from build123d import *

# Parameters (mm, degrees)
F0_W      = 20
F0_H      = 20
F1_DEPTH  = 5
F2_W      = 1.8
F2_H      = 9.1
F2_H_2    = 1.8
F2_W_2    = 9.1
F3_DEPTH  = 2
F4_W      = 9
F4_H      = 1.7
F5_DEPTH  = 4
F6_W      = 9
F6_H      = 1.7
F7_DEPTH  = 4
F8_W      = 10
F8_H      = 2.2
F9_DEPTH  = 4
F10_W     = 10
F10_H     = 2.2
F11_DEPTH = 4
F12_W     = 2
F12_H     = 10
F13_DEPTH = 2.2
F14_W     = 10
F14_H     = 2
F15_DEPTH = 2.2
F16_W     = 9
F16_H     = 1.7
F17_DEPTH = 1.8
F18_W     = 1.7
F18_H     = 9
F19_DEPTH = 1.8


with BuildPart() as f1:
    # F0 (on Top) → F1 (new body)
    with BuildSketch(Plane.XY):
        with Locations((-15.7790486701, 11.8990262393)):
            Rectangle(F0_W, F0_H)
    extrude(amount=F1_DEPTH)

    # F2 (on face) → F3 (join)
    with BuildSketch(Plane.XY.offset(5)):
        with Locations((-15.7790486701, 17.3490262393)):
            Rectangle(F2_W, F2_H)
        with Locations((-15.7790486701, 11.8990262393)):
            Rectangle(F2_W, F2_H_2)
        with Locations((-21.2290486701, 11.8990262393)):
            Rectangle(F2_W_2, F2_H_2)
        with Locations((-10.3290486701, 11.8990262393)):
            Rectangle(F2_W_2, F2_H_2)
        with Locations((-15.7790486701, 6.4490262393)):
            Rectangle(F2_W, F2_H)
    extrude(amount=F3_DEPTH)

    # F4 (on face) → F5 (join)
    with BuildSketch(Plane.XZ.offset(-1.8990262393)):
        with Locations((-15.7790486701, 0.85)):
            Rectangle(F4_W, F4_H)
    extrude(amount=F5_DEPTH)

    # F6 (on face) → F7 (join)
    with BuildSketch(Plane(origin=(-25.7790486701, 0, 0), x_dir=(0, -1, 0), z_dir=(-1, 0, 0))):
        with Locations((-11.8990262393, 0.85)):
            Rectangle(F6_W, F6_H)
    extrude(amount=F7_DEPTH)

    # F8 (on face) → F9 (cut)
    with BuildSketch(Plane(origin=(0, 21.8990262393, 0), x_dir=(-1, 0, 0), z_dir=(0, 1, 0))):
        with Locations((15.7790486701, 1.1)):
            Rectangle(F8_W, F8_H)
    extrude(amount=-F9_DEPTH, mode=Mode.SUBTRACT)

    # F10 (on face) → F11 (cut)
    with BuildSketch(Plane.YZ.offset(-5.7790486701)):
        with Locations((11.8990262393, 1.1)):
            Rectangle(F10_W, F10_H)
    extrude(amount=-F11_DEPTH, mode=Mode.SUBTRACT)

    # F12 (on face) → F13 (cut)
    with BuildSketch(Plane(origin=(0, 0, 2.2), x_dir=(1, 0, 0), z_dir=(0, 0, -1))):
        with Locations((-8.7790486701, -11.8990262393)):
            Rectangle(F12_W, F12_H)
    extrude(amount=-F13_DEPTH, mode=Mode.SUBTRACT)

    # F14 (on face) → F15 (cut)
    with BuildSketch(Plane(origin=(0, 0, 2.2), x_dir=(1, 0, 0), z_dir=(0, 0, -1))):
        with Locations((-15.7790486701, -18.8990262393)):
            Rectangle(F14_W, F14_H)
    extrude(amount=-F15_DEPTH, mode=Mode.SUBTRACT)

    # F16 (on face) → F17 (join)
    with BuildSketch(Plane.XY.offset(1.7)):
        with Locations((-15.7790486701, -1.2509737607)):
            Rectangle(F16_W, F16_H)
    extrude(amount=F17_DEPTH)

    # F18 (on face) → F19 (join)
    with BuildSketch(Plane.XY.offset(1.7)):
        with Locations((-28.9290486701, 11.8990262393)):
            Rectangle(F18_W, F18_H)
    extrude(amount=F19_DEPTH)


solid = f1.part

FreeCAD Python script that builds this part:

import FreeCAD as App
import Part
import Sketcher

V = App.Vector
Q = App.Units.Quantity

doc = App.newDocument("Part")
body = doc.addObject("PartDesign::Body", "Body")

sketch1 = body.newObject("Sketcher::SketchObject", "Sketch")
sketch1.AttachmentSupport = (doc.getObject("XY_Plane"), [""])
sketch1.MapMode = "FlatFace"
sketch1.addGeometry(Part.LineSegment(V(-26, 22, 0), V(-26, 2, 0)), False)
sketch1.addGeometry(Part.LineSegment(V(-26, 2, 0), V(-6, 2, 0)), False)
sketch1.addGeometry(Part.LineSegment(V(-6, 2, 0), V(-6, 22, 0)), False)
sketch1.addGeometry(Part.LineSegment(V(-6, 22, 0), V(-26, 22, 0)), False)
sketch1.addConstraint(Sketcher.Constraint("Coincident", 0, 2, 1, 1))
sketch1.addConstraint(Sketcher.Constraint("Coincident", 1, 2, 2, 1))
sketch1.addConstraint(Sketcher.Constraint("Coincident", 2, 2, 3, 1))
sketch1.addConstraint(Sketcher.Constraint("Coincident", 3, 2, 0, 1))
sketch1.addConstraint(Sketcher.Constraint("Vertical", 0))
sketch1.addConstraint(Sketcher.Constraint("Horizontal", 1))
sketch1.addConstraint(Sketcher.Constraint("Vertical", 2))
sketch1.addConstraint(Sketcher.Constraint("Horizontal", 3))
sketch1.addConstraint(Sketcher.Constraint("Equal", 3, 0))
sketch1.addConstraint(Sketcher.Constraint("DistanceX", 1, 1, 1, 2, Q("20 mm")))
sketch1.addConstraint(Sketcher.Constraint("DistanceX", 0, 2, -1, 1, Q("25.779049 mm")))
sketch1.addConstraint(Sketcher.Constraint("DistanceY", -1, 1, 0, 2, Q("1.899026 mm")))
pad1 = body.newObject("PartDesign::Pad", "Pad")
pad1.Profile = sketch1
pad1.Length = 5

sketch2 = body.newObject("Sketcher::SketchObject", "Sketch001")
sketch2.AttachmentSupport = (doc.getObject("XY_Plane"), [""])
sketch2.MapMode = "FlatFace"
sketch2.AttachmentOffset = App.Placement(V(0, 0, 5), App.Rotation())
sketch2.addGeometry(Part.LineSegment(V(-16.7, 21.9, 0), V(-16.7, 12.8, 0)), False)
sketch2.addGeometry(Part.LineSegment(V(-16.7, 12.8, 0), V(-25.8, 12.8, 0)), False)
sketch2.addGeometry(Part.LineSegment(V(-25.8, 12.8, 0), V(-25.8, 11, 0)), False)
sketch2.addGeometry(Part.LineSegment(V(-25.8, 11, 0), V(-16.7, 11, 0)), False)
sketch2.addGeometry(Part.LineSegment(V(-16.7, 11, 0), V(-16.7, 1.9, 0)), False)
sketch2.addGeometry(Part.LineSegment(V(-16.7, 1.9, 0), V(-14.9, 1.9, 0)), False)
sketch2.addGeometry(Part.LineSegment(V(-14.9, 1.9, 0), V(-14.9, 11, 0)), False)
sketch2.addGeometry(Part.LineSegment(V(-14.9, 11, 0), V(-5.8, 11, 0)), False)
sketch2.addGeometry(Part.LineSegment(V(-5.8, 11, 0), V(-5.8, 12.8, 0)), False)
sketch2.addGeometry(Part.LineSegment(V(-5.8, 12.8, 0), V(-14.9, 12.8, 0)), False)
sketch2.addGeometry(Part.LineSegment(V(-14.9, 12.8, 0), V(-14.9, 21.9, 0)), False)
sketch2.addGeometry(Part.LineSegment(V(-14.9, 21.9, 0), V(-16.7, 21.9, 0)), False)
sketch2.addConstraint(Sketcher.Constraint("Coincident", 0, 2, 1, 1))
sketch2.addConstraint(Sketcher.Constraint("Coincident", 1, 2, 2, 1))
sketch2.addConstraint(Sketcher.Constraint("Coincident", 2, 2, 3, 1))
sketch2.addConstraint(Sketcher.Constraint("Coincident", 3, 2, 4, 1))
sketch2.addConstraint(Sketcher.Constraint("Coincident", 4, 2, 5, 1))
sketch2.addConstraint(Sketcher.Constraint("Coincident", 5, 2, 6, 1))
sketch2.addConstraint(Sketcher.Constraint("Coincident", 6, 2, 7, 1))
sketch2.addConstraint(Sketcher.Constraint("Coincident", 7, 2, 8, 1))
sketch2.addConstraint(Sketcher.Constraint("Coincident", 8, 2, 9, 1))
sketch2.addConstraint(Sketcher.Constraint("Coincident", 9, 2, 10, 1))
sketch2.addConstraint(Sketcher.Constraint("Coincident", 10, 2, 11, 1))
sketch2.addConstraint(Sketcher.Constraint("Coincident", 11, 2, 0, 1))
sketch2.addConstraint(Sketcher.Constraint("Vertical", 0))
sketch2.addConstraint(Sketcher.Constraint("Horizontal", 1))
sketch2.addConstraint(Sketcher.Constraint("Vertical", 2))
sketch2.addConstraint(Sketcher.Constraint("Horizontal", 3))
sketch2.addConstraint(Sketcher.Constraint("Vertical", 4))
sketch2.addConstraint(Sketcher.Constraint("Horizontal", 5))
sketch2.addConstraint(Sketcher.Constraint("Vertical", 6))
sketch2.addConstraint(Sketcher.Constraint("Horizontal", 7))
sketch2.addConstraint(Sketcher.Constraint("Vertical", 8))
sketch2.addConstraint(Sketcher.Constraint("Horizontal", 9))
sketch2.addConstraint(Sketcher.Constraint("Vertical", 10))
sketch2.addConstraint(Sketcher.Constraint("Horizontal", 11))
sketch2.addConstraint(Sketcher.Constraint("Horizontal", 3, 2, 6, 2))
sketch2.addConstraint(Sketcher.Constraint("Horizontal", 1, 2, 8, 2))
sketch2.addConstraint(Sketcher.Constraint("Vertical", 0, 2, 3, 2))
sketch2.addConstraint(Sketcher.Constraint("Vertical", 6, 2, 9, 2))
sketch2.addConstraint(Sketcher.Constraint("Equal", 3, 7))
sketch2.addConstraint(Sketcher.Constraint("Equal", 9, 0))
sketch2.addConstraint(Sketcher.Constraint("Equal", 11, 2))
sketch2.addConstraint(Sketcher.Constraint("Equal", 0, 4))
sketch2.addConstraint(Sketcher.Constraint("DistanceX", 1, 2, 1, 1, Q("9.1 mm")))
sketch2.addConstraint(Sketcher.Constraint("DistanceX", 5, 1, 5, 2, Q("1.8 mm")))
sketch2.addConstraint(Sketcher.Constraint("DistanceX", 0, 2, -1, 1, Q("16.679049 mm")))
sketch2.addConstraint(Sketcher.Constraint("DistanceY", -1, 1, 0, 2, Q("12.799026 mm")))
pad2 = body.newObject("PartDesign::Pad", "Pad001")
pad2.Profile = sketch2
pad2.Length = 2

sketch3 = body.newObject("Sketcher::SketchObject", "Sketch002")
sketch3.AttachmentSupport = (doc.getObject("XZ_Plane"), [""])
sketch3.MapMode = "FlatFace"
sketch3.AttachmentOffset = App.Placement(V(0, 0, -1.899026), App.Rotation())
sketch3.addGeometry(Part.LineSegment(V(-20.3, 1.7, 0), V(-20.3, 0, 0)), False)
sketch3.addGeometry(Part.LineSegment(V(-20.3, 0, 0), V(-11.3, 0, 0)), False)
sketch3.addGeometry(Part.LineSegment(V(-11.3, 0, 0), V(-11.3, 1.7, 0)), False)
sketch3.addGeometry(Part.LineSegment(V(-11.3, 1.7, 0), V(-20.3, 1.7, 0)), False)
sketch3.addConstraint(Sketcher.Constraint("Coincident", 0, 2, 1, 1))
sketch3.addConstraint(Sketcher.Constraint("Coincident", 1, 2, 2, 1))
sketch3.addConstraint(Sketcher.Constraint("Coincident", 2, 2, 3, 1))
sketch3.addConstraint(Sketcher.Constraint("Coincident", 3, 2, 0, 1))
sketch3.addConstraint(Sketcher.Constraint("Vertical", 0))
sketch3.addConstraint(Sketcher.Constraint("Horizontal", 1))
sketch3.addConstraint(Sketcher.Constraint("Vertical", 2))
sketch3.addConstraint(Sketcher.Constraint("Horizontal", 3))
sketch3.addConstraint(Sketcher.Constraint("PointOnObject", 0, 2, -1))
sketch3.addConstraint(Sketcher.Constraint("DistanceX", 1, 1, 1, 2, Q("9 mm")))
sketch3.addConstraint(Sketcher.Constraint("DistanceY", 0, 2, 0, 1, Q("1.7 mm")))
sketch3.addConstraint(Sketcher.Constraint("DistanceX", 0, 2, -1, 1, Q("20.279049 mm")))
pad3 = body.newObject("PartDesign::Pad", "Pad002")
pad3.Profile = sketch3
pad3.Length = 4

sketch4 = body.newObject("Sketcher::SketchObject", "Sketch003")
sketch4.AttachmentSupport = (doc.getObject("YZ_Plane"), [""])
sketch4.MapMode = "FlatFace"
sketch4.AttachmentOffset = App.Placement(V(0, 0, -25.779049), App.Rotation())
sketch4.addGeometry(Part.LineSegment(V(16.4, 1.7, 0), V(16.4, 0, 0)), False)
sketch4.addGeometry(Part.LineSegment(V(16.4, 0, 0), V(7.4, 0, 0)), False)
sketch4.addGeometry(Part.LineSegment(V(7.4, 0, 0), V(7.4, 1.7, 0)), False)
sketch4.addGeometry(Part.LineSegment(V(7.4, 1.7, 0), V(16.4, 1.7, 0)), False)
sketch4.addConstraint(Sketcher.Constraint("Coincident", 0, 2, 1, 1))
sketch4.addConstraint(Sketcher.Constraint("Coincident", 1, 2, 2, 1))
sketch4.addConstraint(Sketcher.Constraint("Coincident", 2, 2, 3, 1))
sketch4.addConstraint(Sketcher.Constraint("Coincident", 3, 2, 0, 1))
sketch4.addConstraint(Sketcher.Constraint("Vertical", 0))
sketch4.addConstraint(Sketcher.Constraint("Horizontal", 1))
sketch4.addConstraint(Sketcher.Constraint("Vertical", 2))
sketch4.addConstraint(Sketcher.Constraint("Horizontal", 3))
sketch4.addConstraint(Sketcher.Constraint("PointOnObject", 0, 2, -1))
sketch4.addConstraint(Sketcher.Constraint("DistanceX", 1, 2, 1, 1, Q("9 mm")))
sketch4.addConstraint(Sketcher.Constraint("DistanceY", 0, 2, 0, 1, Q("1.7 mm")))
sketch4.addConstraint(Sketcher.Constraint("DistanceX", -1, 1, 0, 2, Q("16.399026 mm")))
pad4 = body.newObject("PartDesign::Pad", "Pad003")
pad4.Profile = sketch4
pad4.Length = 4
pad4.Reversed = True

sketch5 = body.newObject("Sketcher::SketchObject", "Sketch004")
sketch5.AttachmentSupport = (doc.getObject("XZ_Plane"), [""])
sketch5.MapMode = "FlatFace"
sketch5.AttachmentOffset = App.Placement(V(0, 0, -21.899026), App.Rotation())
sketch5.addGeometry(Part.LineSegment(V(-10.8, 2.2, 0), V(-10.8, 0, 0)), False)
sketch5.addGeometry(Part.LineSegment(V(-10.8, 0, 0), V(-20.8, 0, 0)), False)
sketch5.addGeometry(Part.LineSegment(V(-20.8, 0, 0), V(-20.8, 2.2, 0)), False)
sketch5.addGeometry(Part.LineSegment(V(-20.8, 2.2, 0), V(-10.8, 2.2, 0)), False)
sketch5.addConstraint(Sketcher.Constraint("Coincident", 0, 2, 1, 1))
sketch5.addConstraint(Sketcher.Constraint("Coincident", 1, 2, 2, 1))
sketch5.addConstraint(Sketcher.Constraint("Coincident", 2, 2, 3, 1))
sketch5.addConstraint(Sketcher.Constraint("Coincident", 3, 2, 0, 1))
sketch5.addConstraint(Sketcher.Constraint("Vertical", 0))
sketch5.addConstraint(Sketcher.Constraint("Horizontal", 1))
sketch5.addConstraint(Sketcher.Constraint("Vertical", 2))
sketch5.addConstraint(Sketcher.Constraint("Horizontal", 3))
sketch5.addConstraint(Sketcher.Constraint("PointOnObject", 0, 2, -1))
sketch5.addConstraint(Sketcher.Constraint("DistanceX", 1, 2, 1, 1, Q("10 mm")))
sketch5.addConstraint(Sketcher.Constraint("DistanceY", 0, 2, 0, 1, Q("2.2 mm")))
sketch5.addConstraint(Sketcher.Constraint("DistanceX", 0, 2, -1, 1, Q("10.779049 mm")))
pocket1 = body.newObject("PartDesign::Pocket", "Pocket")
pocket1.Profile = sketch5
pocket1.Length = 4
pocket1.Reversed = True

sketch6 = body.newObject("Sketcher::SketchObject", "Sketch005")
sketch6.AttachmentSupport = (doc.getObject("YZ_Plane"), [""])
sketch6.MapMode = "FlatFace"
sketch6.AttachmentOffset = App.Placement(V(0, 0, -5.779049), App.Rotation())
sketch6.addGeometry(Part.LineSegment(V(6.9, 2.2, 0), V(6.9, 0, 0)), False)
sketch6.addGeometry(Part.LineSegment(V(6.9, 0, 0), V(16.9, 0, 0)), False)
sketch6.addGeometry(Part.LineSegment(V(16.9, 0, 0), V(16.9, 2.2, 0)), False)
sketch6.addGeometry(Part.LineSegment(V(16.9, 2.2, 0), V(6.9, 2.2, 0)), False)
sketch6.addConstraint(Sketcher.Constraint("Coincident", 0, 2, 1, 1))
sketch6.addConstraint(Sketcher.Constraint("Coincident", 1, 2, 2, 1))
sketch6.addConstraint(Sketcher.Constraint("Coincident", 2, 2, 3, 1))
sketch6.addConstraint(Sketcher.Constraint("Coincident", 3, 2, 0, 1))
sketch6.addConstraint(Sketcher.Constraint("Vertical", 0))
sketch6.addConstraint(Sketcher.Constraint("Horizontal", 1))
sketch6.addConstraint(Sketcher.Constraint("Vertical", 2))
sketch6.addConstraint(Sketcher.Constraint("Horizontal", 3))
sketch6.addConstraint(Sketcher.Constraint("PointOnObject", 0, 2, -1))
sketch6.addConstraint(Sketcher.Constraint("DistanceX", 1, 1, 1, 2, Q("10 mm")))
sketch6.addConstraint(Sketcher.Constraint("DistanceY", 0, 2, 0, 1, Q("2.2 mm")))
sketch6.addConstraint(Sketcher.Constraint("DistanceX", -1, 1, 0, 2, Q("6.899026 mm")))
pocket2 = body.newObject("PartDesign::Pocket", "Pocket001")
pocket2.Profile = sketch6
pocket2.Length = 4

sketch7 = body.newObject("Sketcher::SketchObject", "Sketch006")
sketch7.AttachmentSupport = (doc.getObject("XY_Plane"), [""])
sketch7.MapMode = "FlatFace"
sketch7.AttachmentOffset = App.Placement(V(0, 0, 2.2), App.Rotation())
sketch7.addGeometry(Part.LineSegment(V(-9.8, 6.9, 0), V(-9.8, 16.9, 0)), False)
sketch7.addGeometry(Part.LineSegment(V(-9.8, 16.9, 0), V(-7.8, 16.9, 0)), False)
sketch7.addGeometry(Part.LineSegment(V(-7.8, 16.9, 0), V(-7.8, 6.9, 0)), False)
sketch7.addGeometry(Part.LineSegment(V(-7.8, 6.9, 0), V(-9.8, 6.9, 0)), False)
sketch7.addConstraint(Sketcher.Constraint("Coincident", 0, 2, 1, 1))
sketch7.addConstraint(Sketcher.Constraint("Coincident", 1, 2, 2, 1))
sketch7.addConstraint(Sketcher.Constraint("Coincident", 2, 2, 3, 1))
sketch7.addConstraint(Sketcher.Constraint("Coincident", 3, 2, 0, 1))
sketch7.addConstraint(Sketcher.Constraint("Vertical", 0))
sketch7.addConstraint(Sketcher.Constraint("Horizontal", 1))
sketch7.addConstraint(Sketcher.Constraint("Vertical", 2))
sketch7.addConstraint(Sketcher.Constraint("Horizontal", 3))
sketch7.addConstraint(Sketcher.Constraint("DistanceX", 1, 1, 1, 2, Q("2 mm")))
sketch7.addConstraint(Sketcher.Constraint("DistanceY", 0, 1, 0, 2, Q("10 mm")))
sketch7.addConstraint(Sketcher.Constraint("DistanceX", 0, 2, -1, 1, Q("9.779049 mm")))
sketch7.addConstraint(Sketcher.Constraint("DistanceY", -1, 1, 0, 2, Q("16.899026 mm")))
pocket3 = body.newObject("PartDesign::Pocket", "Pocket002")
pocket3.Profile = sketch7
pocket3.Length = 2.2
pocket3.Reversed = True

sketch8 = body.newObject("Sketcher::SketchObject", "Sketch007")
sketch8.AttachmentSupport = (doc.getObject("XY_Plane"), [""])
sketch8.MapMode = "FlatFace"
sketch8.AttachmentOffset = App.Placement(V(0, 0, 2.2), App.Rotation())
sketch8.addGeometry(Part.LineSegment(V(-20.8, 17.9, 0), V(-20.8, 19.9, 0)), False)
sketch8.addGeometry(Part.LineSegment(V(-20.8, 19.9, 0), V(-10.8, 19.9, 0)), False)
sketch8.addGeometry(Part.LineSegment(V(-10.8, 19.9, 0), V(-10.8, 17.9, 0)), False)
sketch8.addGeometry(Part.LineSegment(V(-10.8, 17.9, 0), V(-20.8, 17.9, 0)), False)
sketch8.addConstraint(Sketcher.Constraint("Coincident", 0, 2, 1, 1))
sketch8.addConstraint(Sketcher.Constraint("Coincident", 1, 2, 2, 1))
sketch8.addConstraint(Sketcher.Constraint("Coincident", 2, 2, 3, 1))
sketch8.addConstraint(Sketcher.Constraint("Coincident", 3, 2, 0, 1))
sketch8.addConstraint(Sketcher.Constraint("Vertical", 0))
sketch8.addConstraint(Sketcher.Constraint("Horizontal", 1))
sketch8.addConstraint(Sketcher.Constraint("Vertical", 2))
sketch8.addConstraint(Sketcher.Constraint("Horizontal", 3))
sketch8.addConstraint(Sketcher.Constraint("DistanceX", 1, 1, 1, 2, Q("10 mm")))
sketch8.addConstraint(Sketcher.Constraint("DistanceY", 0, 1, 0, 2, Q("2 mm")))
sketch8.addConstraint(Sketcher.Constraint("DistanceX", 0, 2, -1, 1, Q("20.779049 mm")))
sketch8.addConstraint(Sketcher.Constraint("DistanceY", -1, 1, 0, 2, Q("19.899026 mm")))
pocket4 = body.newObject("PartDesign::Pocket", "Pocket003")
pocket4.Profile = sketch8
pocket4.Length = 2.2
pocket4.Reversed = True

sketch9 = body.newObject("Sketcher::SketchObject", "Sketch008")
sketch9.AttachmentSupport = (doc.getObject("XY_Plane"), [""])
sketch9.MapMode = "FlatFace"
sketch9.AttachmentOffset = App.Placement(V(0, 0, 1.7), App.Rotation())
sketch9.addGeometry(Part.LineSegment(V(-20.3, -0.4, 0), V(-20.3, -2.1, 0)), False)
sketch9.addGeometry(Part.LineSegment(V(-20.3, -2.1, 0), V(-11.3, -2.1, 0)), False)
sketch9.addGeometry(Part.LineSegment(V(-11.3, -2.1, 0), V(-11.3, -0.4, 0)), False)
sketch9.addGeometry(Part.LineSegment(V(-11.3, -0.4, 0), V(-20.3, -0.4, 0)), False)
sketch9.addConstraint(Sketcher.Constraint("Coincident", 0, 2, 1, 1))
sketch9.addConstraint(Sketcher.Constraint("Coincident", 1, 2, 2, 1))
sketch9.addConstraint(Sketcher.Constraint("Coincident", 2, 2, 3, 1))
sketch9.addConstraint(Sketcher.Constraint("Coincident", 3, 2, 0, 1))
sketch9.addConstraint(Sketcher.Constraint("Vertical", 0))
sketch9.addConstraint(Sketcher.Constraint("Horizontal", 1))
sketch9.addConstraint(Sketcher.Constraint("Vertical", 2))
sketch9.addConstraint(Sketcher.Constraint("Horizontal", 3))
sketch9.addConstraint(Sketcher.Constraint("DistanceX", 1, 1, 1, 2, Q("9 mm")))
sketch9.addConstraint(Sketcher.Constraint("DistanceY", 0, 2, 0, 1, Q("1.7 mm")))
sketch9.addConstraint(Sketcher.Constraint("DistanceX", 0, 2, -1, 1, Q("20.279049 mm")))
sketch9.addConstraint(Sketcher.Constraint("DistanceY", 0, 2, -1, 1, Q("2.100974 mm")))
pad5 = body.newObject("PartDesign::Pad", "Pad004")
pad5.Profile = sketch9
pad5.Length = 1.8

sketch10 = body.newObject("Sketcher::SketchObject", "Sketch009")
sketch10.AttachmentSupport = (doc.getObject("XY_Plane"), [""])
sketch10.MapMode = "FlatFace"
sketch10.AttachmentOffset = App.Placement(V(0, 0, 1.7), App.Rotation())
sketch10.addGeometry(Part.LineSegment(V(-29.8, 16.4, 0), V(-29.8, 7.4, 0)), False)
sketch10.addGeometry(Part.LineSegment(V(-29.8, 7.4, 0), V(-28.1, 7.4, 0)), False)
sketch10.addGeometry(Part.LineSegment(V(-28.1, 7.4, 0), V(-28.1, 16.4, 0)), False)
sketch10.addGeometry(Part.LineSegment(V(-28.1, 16.4, 0), V(-29.8, 16.4, 0)), False)
sketch10.addConstraint(Sketcher.Constraint("Coincident", 0, 2, 1, 1))
sketch10.addConstraint(Sketcher.Constraint("Coincident", 1, 2, 2, 1))
sketch10.addConstraint(Sketcher.Constraint("Coincident", 2, 2, 3, 1))
sketch10.addConstraint(Sketcher.Constraint("Coincident", 3, 2, 0, 1))
sketch10.addConstraint(Sketcher.Constraint("Vertical", 0))
sketch10.addConstraint(Sketcher.Constraint("Horizontal", 1))
sketch10.addConstraint(Sketcher.Constraint("Vertical", 2))
sketch10.addConstraint(Sketcher.Constraint("Horizontal", 3))
sketch10.addConstraint(Sketcher.Constraint("DistanceY", 0, 2, 0, 1, Q("9 mm")))
sketch10.addConstraint(Sketcher.Constraint("DistanceX", 1, 1, 1, 2, Q("1.7 mm")))
sketch10.addConstraint(Sketcher.Constraint("DistanceX", 0, 2, -1, 1, Q("29.779049 mm")))
sketch10.addConstraint(Sketcher.Constraint("DistanceY", -1, 1, 0, 2, Q("7.399026 mm")))
pad6 = body.newObject("PartDesign::Pad", "Pad005")
pad6.Profile = sketch10
pad6.Length = 1.8

doc.recompute()
